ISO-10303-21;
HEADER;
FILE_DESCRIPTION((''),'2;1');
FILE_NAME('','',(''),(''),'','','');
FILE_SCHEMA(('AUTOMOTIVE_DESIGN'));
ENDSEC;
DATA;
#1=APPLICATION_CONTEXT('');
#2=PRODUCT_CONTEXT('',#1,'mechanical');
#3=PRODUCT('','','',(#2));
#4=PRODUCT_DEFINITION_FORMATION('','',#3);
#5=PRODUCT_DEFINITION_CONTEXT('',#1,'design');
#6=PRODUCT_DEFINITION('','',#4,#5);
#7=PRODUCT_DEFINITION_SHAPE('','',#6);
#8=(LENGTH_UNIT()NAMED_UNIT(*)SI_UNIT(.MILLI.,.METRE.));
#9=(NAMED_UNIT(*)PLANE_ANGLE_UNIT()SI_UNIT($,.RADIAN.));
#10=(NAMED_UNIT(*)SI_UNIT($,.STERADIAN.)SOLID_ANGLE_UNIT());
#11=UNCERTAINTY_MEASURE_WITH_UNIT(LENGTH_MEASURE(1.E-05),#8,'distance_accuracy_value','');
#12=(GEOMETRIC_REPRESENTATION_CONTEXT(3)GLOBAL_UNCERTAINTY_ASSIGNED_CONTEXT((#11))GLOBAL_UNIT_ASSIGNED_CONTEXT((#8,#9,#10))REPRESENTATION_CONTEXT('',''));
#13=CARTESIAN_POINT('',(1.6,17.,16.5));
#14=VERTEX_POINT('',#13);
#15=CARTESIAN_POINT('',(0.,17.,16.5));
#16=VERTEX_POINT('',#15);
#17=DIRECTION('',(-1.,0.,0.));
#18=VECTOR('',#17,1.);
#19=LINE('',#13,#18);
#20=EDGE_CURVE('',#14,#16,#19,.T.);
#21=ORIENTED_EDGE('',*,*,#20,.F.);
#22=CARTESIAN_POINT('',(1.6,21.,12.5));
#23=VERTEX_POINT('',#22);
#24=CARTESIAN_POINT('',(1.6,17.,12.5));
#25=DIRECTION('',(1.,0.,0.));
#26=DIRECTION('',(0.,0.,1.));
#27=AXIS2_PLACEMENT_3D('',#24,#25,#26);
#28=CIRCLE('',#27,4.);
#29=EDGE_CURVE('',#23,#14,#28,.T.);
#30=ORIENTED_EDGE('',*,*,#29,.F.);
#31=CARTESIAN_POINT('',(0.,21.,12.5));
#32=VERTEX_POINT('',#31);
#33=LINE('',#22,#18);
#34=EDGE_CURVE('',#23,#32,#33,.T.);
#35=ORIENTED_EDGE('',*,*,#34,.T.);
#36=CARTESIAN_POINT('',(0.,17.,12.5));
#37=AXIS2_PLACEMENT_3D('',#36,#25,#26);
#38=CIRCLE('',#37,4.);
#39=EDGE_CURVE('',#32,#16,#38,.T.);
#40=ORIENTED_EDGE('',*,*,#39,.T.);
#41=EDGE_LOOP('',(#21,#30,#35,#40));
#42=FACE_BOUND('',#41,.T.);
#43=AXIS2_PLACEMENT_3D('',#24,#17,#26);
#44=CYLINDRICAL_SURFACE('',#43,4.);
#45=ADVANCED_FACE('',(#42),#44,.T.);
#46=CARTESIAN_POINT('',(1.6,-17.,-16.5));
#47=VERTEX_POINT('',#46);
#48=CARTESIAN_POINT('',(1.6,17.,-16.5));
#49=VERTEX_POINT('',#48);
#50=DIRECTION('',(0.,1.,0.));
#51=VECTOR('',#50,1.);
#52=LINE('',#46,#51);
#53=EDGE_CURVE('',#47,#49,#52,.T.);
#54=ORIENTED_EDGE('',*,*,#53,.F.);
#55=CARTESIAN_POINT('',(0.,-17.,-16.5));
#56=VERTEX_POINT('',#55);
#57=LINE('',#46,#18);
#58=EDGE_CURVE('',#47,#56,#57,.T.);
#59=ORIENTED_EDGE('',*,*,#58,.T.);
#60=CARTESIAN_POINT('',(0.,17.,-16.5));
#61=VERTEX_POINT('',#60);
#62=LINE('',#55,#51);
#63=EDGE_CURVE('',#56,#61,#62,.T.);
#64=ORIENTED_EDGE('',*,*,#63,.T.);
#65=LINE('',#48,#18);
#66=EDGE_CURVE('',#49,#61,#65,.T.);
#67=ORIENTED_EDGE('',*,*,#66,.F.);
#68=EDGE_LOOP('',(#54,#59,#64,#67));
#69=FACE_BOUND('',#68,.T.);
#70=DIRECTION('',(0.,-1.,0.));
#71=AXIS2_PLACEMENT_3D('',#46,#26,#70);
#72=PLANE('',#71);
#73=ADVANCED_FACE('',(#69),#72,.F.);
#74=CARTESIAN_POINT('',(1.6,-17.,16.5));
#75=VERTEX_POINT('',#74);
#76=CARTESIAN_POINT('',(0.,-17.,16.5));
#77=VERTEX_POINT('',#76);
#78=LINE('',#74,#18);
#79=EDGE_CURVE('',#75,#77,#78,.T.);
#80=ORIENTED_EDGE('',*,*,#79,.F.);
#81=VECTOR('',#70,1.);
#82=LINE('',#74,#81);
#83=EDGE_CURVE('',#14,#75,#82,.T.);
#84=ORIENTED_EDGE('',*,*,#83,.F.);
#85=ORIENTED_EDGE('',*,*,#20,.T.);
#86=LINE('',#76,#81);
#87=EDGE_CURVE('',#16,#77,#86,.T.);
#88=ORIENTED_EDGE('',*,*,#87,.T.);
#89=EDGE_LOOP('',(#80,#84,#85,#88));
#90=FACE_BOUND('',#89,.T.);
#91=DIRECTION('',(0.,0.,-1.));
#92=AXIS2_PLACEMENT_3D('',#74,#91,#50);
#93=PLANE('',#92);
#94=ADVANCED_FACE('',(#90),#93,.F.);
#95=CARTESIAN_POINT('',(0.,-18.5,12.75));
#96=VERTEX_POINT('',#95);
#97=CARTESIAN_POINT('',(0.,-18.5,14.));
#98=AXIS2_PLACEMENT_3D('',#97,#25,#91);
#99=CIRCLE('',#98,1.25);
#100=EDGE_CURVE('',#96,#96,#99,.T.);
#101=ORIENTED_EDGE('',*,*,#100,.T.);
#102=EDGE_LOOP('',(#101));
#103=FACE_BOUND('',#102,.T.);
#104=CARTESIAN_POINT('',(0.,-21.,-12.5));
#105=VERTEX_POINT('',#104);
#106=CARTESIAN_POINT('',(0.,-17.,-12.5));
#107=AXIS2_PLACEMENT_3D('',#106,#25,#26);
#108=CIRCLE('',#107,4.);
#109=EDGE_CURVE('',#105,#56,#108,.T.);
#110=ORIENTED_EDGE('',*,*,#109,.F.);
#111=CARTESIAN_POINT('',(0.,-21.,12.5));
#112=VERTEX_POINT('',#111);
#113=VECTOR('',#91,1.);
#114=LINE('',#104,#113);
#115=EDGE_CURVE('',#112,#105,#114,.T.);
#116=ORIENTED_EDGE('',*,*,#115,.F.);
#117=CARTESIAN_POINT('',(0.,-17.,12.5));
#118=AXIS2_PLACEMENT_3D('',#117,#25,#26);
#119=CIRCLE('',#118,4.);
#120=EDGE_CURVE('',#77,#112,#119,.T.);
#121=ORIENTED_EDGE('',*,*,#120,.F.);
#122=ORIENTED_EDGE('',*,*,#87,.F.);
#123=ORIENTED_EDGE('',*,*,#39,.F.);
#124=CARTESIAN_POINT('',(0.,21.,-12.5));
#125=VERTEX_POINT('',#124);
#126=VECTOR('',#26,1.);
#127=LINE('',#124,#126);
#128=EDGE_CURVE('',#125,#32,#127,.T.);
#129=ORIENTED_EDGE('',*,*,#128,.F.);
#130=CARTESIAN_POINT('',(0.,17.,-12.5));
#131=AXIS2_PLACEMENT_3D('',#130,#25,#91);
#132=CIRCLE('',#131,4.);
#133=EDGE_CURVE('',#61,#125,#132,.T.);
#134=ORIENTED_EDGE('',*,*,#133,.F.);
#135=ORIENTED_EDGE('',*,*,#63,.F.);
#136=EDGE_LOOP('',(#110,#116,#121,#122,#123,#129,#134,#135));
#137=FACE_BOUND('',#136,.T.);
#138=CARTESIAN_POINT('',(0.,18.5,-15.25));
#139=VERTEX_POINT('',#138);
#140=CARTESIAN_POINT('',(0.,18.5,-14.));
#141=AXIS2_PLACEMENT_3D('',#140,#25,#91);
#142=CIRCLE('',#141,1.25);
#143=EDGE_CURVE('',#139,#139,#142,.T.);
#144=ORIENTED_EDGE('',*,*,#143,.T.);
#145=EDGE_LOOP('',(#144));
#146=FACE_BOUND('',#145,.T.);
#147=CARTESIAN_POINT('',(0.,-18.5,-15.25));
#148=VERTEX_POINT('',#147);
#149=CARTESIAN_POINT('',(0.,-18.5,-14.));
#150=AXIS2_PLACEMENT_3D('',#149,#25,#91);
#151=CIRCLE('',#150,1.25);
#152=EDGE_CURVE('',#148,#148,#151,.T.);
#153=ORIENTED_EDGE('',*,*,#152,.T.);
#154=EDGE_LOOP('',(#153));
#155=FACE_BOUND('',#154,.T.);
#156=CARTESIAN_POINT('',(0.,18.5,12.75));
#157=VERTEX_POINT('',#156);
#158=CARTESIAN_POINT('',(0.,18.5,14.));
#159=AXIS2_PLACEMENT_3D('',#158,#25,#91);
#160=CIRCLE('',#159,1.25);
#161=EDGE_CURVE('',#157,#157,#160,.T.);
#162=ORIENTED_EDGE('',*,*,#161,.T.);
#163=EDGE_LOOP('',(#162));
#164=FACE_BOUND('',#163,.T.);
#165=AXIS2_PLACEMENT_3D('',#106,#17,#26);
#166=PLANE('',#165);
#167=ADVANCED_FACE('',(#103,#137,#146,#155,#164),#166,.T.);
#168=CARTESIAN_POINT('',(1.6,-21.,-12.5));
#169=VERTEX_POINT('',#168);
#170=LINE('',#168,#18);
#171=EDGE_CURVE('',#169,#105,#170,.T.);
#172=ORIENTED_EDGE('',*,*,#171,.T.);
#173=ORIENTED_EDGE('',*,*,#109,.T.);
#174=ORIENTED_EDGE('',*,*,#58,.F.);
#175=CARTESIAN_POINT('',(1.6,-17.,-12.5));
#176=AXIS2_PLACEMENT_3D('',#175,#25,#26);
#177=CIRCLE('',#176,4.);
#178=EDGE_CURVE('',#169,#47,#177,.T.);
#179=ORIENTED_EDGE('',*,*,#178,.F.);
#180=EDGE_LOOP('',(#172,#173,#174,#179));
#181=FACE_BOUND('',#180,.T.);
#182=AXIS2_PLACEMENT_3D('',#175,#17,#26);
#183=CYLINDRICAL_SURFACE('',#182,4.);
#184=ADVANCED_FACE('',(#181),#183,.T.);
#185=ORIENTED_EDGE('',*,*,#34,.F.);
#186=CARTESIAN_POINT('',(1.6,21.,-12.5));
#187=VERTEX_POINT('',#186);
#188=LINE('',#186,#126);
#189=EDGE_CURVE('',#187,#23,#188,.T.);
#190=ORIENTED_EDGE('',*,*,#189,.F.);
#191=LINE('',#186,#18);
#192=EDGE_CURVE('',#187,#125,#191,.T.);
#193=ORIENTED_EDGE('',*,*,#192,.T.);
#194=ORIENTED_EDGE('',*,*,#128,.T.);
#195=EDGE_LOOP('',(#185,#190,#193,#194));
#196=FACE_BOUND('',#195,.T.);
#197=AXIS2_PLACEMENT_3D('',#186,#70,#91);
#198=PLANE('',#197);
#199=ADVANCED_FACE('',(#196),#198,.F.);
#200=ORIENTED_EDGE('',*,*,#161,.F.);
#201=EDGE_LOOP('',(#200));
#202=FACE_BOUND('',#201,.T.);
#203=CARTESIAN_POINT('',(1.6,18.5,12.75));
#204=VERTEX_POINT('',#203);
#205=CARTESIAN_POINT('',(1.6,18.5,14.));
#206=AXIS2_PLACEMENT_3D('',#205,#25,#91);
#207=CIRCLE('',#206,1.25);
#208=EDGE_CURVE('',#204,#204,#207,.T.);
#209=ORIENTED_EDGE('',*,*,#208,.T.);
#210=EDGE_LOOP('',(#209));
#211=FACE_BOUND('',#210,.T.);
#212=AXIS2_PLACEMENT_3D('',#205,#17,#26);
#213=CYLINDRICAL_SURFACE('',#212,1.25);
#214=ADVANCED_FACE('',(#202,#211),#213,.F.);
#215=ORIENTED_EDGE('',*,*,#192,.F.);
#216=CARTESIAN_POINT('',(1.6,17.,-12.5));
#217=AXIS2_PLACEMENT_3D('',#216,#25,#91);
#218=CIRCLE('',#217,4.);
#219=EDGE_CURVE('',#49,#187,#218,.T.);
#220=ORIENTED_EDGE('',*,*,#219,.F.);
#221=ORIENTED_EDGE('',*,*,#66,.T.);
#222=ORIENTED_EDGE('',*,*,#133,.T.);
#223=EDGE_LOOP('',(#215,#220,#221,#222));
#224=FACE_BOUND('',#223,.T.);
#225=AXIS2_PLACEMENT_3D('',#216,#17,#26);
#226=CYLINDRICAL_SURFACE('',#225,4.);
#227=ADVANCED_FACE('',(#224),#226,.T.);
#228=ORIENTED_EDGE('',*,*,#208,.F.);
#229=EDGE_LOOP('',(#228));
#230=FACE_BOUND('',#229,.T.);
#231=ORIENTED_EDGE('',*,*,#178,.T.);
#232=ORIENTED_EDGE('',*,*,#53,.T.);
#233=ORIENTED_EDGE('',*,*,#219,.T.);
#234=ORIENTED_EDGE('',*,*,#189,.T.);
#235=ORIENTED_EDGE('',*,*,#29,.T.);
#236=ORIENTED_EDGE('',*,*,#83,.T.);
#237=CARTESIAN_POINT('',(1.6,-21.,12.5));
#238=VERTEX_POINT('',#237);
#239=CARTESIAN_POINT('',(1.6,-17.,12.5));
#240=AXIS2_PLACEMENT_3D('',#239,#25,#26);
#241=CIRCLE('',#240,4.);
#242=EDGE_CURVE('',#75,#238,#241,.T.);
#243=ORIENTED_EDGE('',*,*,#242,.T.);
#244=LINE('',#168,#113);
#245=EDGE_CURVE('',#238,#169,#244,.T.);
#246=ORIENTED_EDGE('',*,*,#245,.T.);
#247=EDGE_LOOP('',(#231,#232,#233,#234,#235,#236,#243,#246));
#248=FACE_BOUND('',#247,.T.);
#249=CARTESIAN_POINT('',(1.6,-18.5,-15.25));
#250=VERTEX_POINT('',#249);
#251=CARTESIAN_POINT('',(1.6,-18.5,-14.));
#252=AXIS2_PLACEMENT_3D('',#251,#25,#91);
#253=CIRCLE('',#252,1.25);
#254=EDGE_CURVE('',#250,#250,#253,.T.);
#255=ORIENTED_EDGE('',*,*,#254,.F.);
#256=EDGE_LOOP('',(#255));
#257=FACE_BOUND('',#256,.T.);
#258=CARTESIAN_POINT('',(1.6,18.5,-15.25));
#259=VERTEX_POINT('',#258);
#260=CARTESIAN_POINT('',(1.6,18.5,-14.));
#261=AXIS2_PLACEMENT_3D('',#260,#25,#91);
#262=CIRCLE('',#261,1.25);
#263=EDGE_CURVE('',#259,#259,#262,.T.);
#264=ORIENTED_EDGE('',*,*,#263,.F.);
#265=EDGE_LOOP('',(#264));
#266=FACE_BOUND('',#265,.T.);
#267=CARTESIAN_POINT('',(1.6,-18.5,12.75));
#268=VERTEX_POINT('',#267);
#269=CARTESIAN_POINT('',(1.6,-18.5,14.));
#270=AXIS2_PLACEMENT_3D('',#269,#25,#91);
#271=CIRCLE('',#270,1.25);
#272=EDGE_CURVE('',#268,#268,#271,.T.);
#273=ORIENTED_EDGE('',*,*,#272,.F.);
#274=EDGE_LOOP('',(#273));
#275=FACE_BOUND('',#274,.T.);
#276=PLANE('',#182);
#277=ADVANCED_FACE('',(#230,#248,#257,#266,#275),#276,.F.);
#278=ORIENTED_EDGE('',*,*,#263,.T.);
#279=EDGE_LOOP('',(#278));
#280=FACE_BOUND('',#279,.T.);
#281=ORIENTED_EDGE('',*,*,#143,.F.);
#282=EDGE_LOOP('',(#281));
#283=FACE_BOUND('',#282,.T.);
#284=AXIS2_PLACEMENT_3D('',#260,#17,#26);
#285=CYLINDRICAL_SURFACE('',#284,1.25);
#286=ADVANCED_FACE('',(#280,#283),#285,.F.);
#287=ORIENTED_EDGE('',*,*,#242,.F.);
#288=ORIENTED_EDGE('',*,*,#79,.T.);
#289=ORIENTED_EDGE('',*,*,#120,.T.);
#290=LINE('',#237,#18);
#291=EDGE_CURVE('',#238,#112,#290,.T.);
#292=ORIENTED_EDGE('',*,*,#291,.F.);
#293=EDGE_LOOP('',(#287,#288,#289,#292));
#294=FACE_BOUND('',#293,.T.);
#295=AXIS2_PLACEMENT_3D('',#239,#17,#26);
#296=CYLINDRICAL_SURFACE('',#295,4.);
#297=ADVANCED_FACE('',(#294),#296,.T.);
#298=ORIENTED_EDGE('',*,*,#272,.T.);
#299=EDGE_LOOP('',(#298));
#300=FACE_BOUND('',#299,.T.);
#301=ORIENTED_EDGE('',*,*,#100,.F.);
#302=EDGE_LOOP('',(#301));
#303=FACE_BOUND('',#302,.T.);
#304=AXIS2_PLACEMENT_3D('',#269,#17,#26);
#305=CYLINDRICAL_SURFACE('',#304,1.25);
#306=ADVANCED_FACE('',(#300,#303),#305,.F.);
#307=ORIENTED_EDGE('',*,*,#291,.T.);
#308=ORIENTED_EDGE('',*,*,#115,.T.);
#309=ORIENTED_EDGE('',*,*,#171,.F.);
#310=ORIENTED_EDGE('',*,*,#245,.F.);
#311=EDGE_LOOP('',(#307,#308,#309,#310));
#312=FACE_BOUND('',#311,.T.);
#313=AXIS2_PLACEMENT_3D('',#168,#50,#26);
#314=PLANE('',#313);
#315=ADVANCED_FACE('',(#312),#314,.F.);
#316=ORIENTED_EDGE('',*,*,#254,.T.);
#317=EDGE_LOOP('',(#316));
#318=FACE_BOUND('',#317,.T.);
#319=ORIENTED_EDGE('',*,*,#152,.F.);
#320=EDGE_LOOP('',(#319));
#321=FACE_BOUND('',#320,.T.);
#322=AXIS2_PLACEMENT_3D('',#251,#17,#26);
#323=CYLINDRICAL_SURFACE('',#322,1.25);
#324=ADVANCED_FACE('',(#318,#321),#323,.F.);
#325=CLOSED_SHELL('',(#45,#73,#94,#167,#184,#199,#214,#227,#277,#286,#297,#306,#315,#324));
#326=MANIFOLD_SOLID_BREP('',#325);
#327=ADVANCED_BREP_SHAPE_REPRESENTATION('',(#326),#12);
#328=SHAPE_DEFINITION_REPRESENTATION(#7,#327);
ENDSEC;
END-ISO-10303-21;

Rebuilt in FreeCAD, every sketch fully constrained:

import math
import FreeCAD as App
import Part
import Sketcher

V = App.Vector
Q = App.Units.Quantity

doc = App.newDocument("Part")
params = doc.addObject("Spreadsheet::Sheet", "Params")
for row, (alias, value) in enumerate([
    ("sketch1_radius", "4 mm"),
    ("sketch1_diameter", "2.5 mm"),
    ("sketch1_width", "34 mm"),
    ("sketch1_height", "25 mm"),
    ("pad1_length", "1.6 mm"),
], start=1):
    params.set(f"A{row}", alias)
    params.set(f"B{row}", "=" + value)
    params.setAlias(f"B{row}", alias)

body = doc.addObject("PartDesign::Body", "Body")

sketch1 = body.newObject("Sketcher::SketchObject", "Sketch")
sketch1.AttachmentSupport = (doc.getObject("YZ_Plane"), [""])
sketch1.MapMode = "FlatFace"
sketch1.addGeometry([
    Part.LineSegment(V(-17, -16.5, 0), V(17, -16.5, 0)),
    Part.ArcOfCircle(Part.Circle(V(17, -12.5, 0), V(0, 0, 1), 4), math.radians(-90), math.radians(0)),
    Part.LineSegment(V(21, -12.5, 0), V(21, 12.5, 0)),
    Part.ArcOfCircle(Part.Circle(V(17, 12.5, 0), V(0, 0, 1), 4), math.radians(0), math.radians(90)),
    Part.LineSegment(V(17, 16.5, 0), V(-17, 16.5, 0)),
    Part.ArcOfCircle(Part.Circle(V(-17, 12.5, 0), V(0, 0, 1), 4), math.radians(90), math.radians(180)),
    Part.LineSegment(V(-21, 12.5, 0), V(-21, -12.5, 0)),
    Part.ArcOfCircle(Part.Circle(V(-17, -12.5, 0), V(0, 0, 1), 4), math.radians(180), math.radians(270)),
    Part.Circle(V(-18.5, -14, 0), V(0, 0, 1), 1.2),
    Part.Circle(V(18.5, -14, 0), V(0, 0, 1), 1.2),
    Part.Circle(V(-18.5, 14, 0), V(0, 0, 1), 1.2),
    Part.Circle(V(18.5, 14, 0), V(0, 0, 1), 1.2),
], False)
sketch1.addConstraint([
    Sketcher.Constraint("Tangent", 0, 2, 1, 1),
    Sketcher.Constraint("Tangent", 1, 2, 2, 1),
    Sketcher.Constraint("Tangent", 2, 2, 3, 1),
    Sketcher.Constraint("Tangent", 3, 2, 4, 1),
    Sketcher.Constraint("Tangent", 4, 2, 5, 1),
    Sketcher.Constraint("Tangent", 5, 2, 6, 1),
    Sketcher.Constraint("Tangent", 6, 2, 7, 1),
    Sketcher.Constraint("Tangent", 7, 2, 0, 1),
    Sketcher.Constraint("Horizontal", 0),
    Sketcher.Constraint("Vertical", 2),
    Sketcher.Constraint("Horizontal", 4),
    Sketcher.Constraint("Vertical", 6),
    Sketcher.Constraint("Equal", 1, 3),
    Sketcher.Constraint("Equal", 3, 5),
    Sketcher.Constraint("Equal", 5, 7),
    Sketcher.Constraint("Equal", 8, 9),
    Sketcher.Constraint("Equal", 9, 10),
    Sketcher.Constraint("Equal", 10, 11),
    Sketcher.Constraint("Symmetric", 1, 3, 5, 3, -1, 1),
    Sketcher.Constraint("Symmetric", 9, 3, 10, 3, -1, 1),
    Sketcher.Constraint("Symmetric", 8, 3, 11, 3, -1, 1),
    Sketcher.Constraint("Symmetric", 8, 3, 9, 3, -2),
    Sketcher.Constraint("Radius", 1, Q("4 mm")),
    Sketcher.Constraint("Diameter", 8, Q("2.5 mm")),
    Sketcher.Constraint("DistanceX", 0, 1, 0, 2, Q("34 mm")),
    Sketcher.Constraint("DistanceY", 2, 1, 2, 2, Q("25 mm")),
    Sketcher.Constraint("DistanceY", 8, 3, -1, 1, Q("14 mm")),
    Sketcher.Constraint("DistanceX", 8, 3, 9, 3, Q("37 mm")),
])
sketch1.setExpression("Constraints[22]", "Params.sketch1_radius")
sketch1.setExpression("Constraints[23]", "Params.sketch1_diameter")
sketch1.setExpression("Constraints[24]", "Params.sketch1_width")
sketch1.setExpression("Constraints[25]", "Params.sketch1_height")
pad1 = body.newObject("PartDesign::Pad", "Pad")
pad1.Profile = sketch1
pad1.setExpression("Length", "Params.pad1_length")

doc.recompute()
